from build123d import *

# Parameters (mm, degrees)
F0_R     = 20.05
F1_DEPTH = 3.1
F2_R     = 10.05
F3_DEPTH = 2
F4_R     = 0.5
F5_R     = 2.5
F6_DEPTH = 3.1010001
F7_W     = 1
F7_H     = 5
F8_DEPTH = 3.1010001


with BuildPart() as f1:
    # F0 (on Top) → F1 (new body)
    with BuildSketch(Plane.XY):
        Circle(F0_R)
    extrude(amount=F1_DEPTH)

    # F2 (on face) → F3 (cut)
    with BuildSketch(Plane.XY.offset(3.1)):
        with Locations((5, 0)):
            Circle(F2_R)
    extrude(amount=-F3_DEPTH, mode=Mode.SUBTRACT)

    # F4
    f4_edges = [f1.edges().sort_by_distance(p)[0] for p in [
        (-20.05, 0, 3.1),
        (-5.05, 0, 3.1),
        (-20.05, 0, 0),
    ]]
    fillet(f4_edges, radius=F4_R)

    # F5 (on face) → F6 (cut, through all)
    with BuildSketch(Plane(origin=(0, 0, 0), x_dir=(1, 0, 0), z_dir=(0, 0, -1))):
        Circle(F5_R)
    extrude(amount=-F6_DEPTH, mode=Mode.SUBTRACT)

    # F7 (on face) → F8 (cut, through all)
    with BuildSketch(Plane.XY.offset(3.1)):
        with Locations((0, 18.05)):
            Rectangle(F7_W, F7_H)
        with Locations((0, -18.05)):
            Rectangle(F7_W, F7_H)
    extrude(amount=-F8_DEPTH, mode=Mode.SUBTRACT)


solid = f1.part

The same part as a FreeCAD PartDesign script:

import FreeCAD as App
import Part
import Sketcher

V = App.Vector


def edges_at(feature, points):
    """Names of the edges that pass closest to the given points."""
    edges = feature.Shape.Edges
    near = lambda p: min(range(len(edges)), key=lambda i: edges[i].distToShape(Part.Vertex(*p))[0])
    return sorted({f"Edge{near(p) + 1}" for p in points})


def add_polygon(sketch, points):
    """Adds a closed chain of lines whose ends are joined by coincident constraints."""
    first, n = sketch.GeometryCount, len(points)
    for a, b in zip(points, points[1:] + points[:1]):
        sketch.addGeometry(Part.LineSegment(App.Vector(*a, 0), App.Vector(*b, 0)), False)
    for i in range(n):
        sketch.addConstraint(Sketcher.Constraint("Coincident", first + i, 2, first + (i + 1) % n, 1))

doc = App.newDocument("Part")
body = doc.addObject("PartDesign::Body", "Body")

sketch1 = body.newObject("Sketcher::SketchObject", "Sketch")
sketch1.AttachmentSupport = (doc.getObject("XY_Plane"), [""])
sketch1.MapMode = "FlatFace"
sketch1.addGeometry(Part.Circle(V(0, 0, 0), V(0, 0, 1), 20.05), False)
sketch1.addConstraint([
    Sketcher.Constraint("Coincident", 0, 3, -1, 1),
    Sketcher.Constraint("Diameter", 0, 40.1),
])
pad1 = body.newObject("PartDesign::Pad", "Pad")
pad1.Profile = sketch1
pad1.Length = 3.1

sketch2 = body.newObject("Sketcher::SketchObject", "Sketch001")
sketch2.AttachmentSupport = (doc.getObject("XY_Plane"), [""])
sketch2.MapMode = "FlatFace"
sketch2.AttachmentOffset = App.Placement(V(0, 0, 3.1), App.Rotation())
sketch2.addGeometry(Part.Circle(V(5, 0, 0), V(0, 0, 1), 10.05), False)
sketch2.addConstraint([
    Sketcher.Constraint("PointOnObject", 0, 3, -1),
    Sketcher.Constraint("Diameter", 0, 20.1),
    Sketcher.Constraint("DistanceX", -1, 1, 0, 3, 5.0),
])
pocket1 = body.newObject("PartDesign::Pocket", "Pocket")
pocket1.Profile = sketch2
pocket1.Length = 2
doc.recompute()

fillet = body.newObject("PartDesign::Fillet", "Fillet")
fillet.Base = (pocket1, edges_at(pocket1, [(-20.05, 0, 3.1), (-5.05, 0, 3.1), (-20.05, 0, 0)]))
fillet.Radius = 0.5

sketch3 = body.newObject("Sketcher::SketchObject", "Sketch002")
sketch3.AttachmentSupport = (doc.getObject("XY_Plane"), [""])
sketch3.MapMode = "FlatFace"
sketch3.addGeometry(Part.Circle(V(0, 0, 0), V(0, 0, 1), 2.5), False)
sketch3.addConstraint([
    Sketcher.Constraint("Coincident", 0, 3, -1, 1),
    Sketcher.Constraint("Diameter", 0, 5.0),
])
pocket2 = body.newObject("PartDesign::Pocket", "Pocket001")
pocket2.Profile = sketch3
pocket2.Type = "ThroughAll"
pocket2.Reversed = True

sketch4 = body.newObject("Sketcher::SketchObject", "Sketch003")
sketch4.AttachmentSupport = (doc.getObject("XY_Plane"), [""])
sketch4.MapMode = "FlatFace"
sketch4.AttachmentOffset = App.Placement(V(0, 0, 3.1), App.Rotation())
add_polygon(sketch4, [(-0.5, 20.55), (-0.5, 15.55), (0.5, 15.55), (0.5, 20.55)])
add_polygon(sketch4, [(-0.5, -15.55), (-0.5, -20.55), (0.5, -20.55), (0.5, -15.55)])
sketch4.addConstraint([
    Sketcher.Constraint("Vertical", 0),
    Sketcher.Constraint("Horizontal", 1),
    Sketcher.Constraint("Vertical", 2),
    Sketcher.Constraint("Horizontal", 3),
    Sketcher.Constraint("Vertical", 4),
    Sketcher.Constraint("Horizontal", 5),
    Sketcher.Constraint("Vertical", 6),
    Sketcher.Constraint("Horizontal", 7),
    Sketcher.Constraint("Symmetric", 2, 2, 4, 2, -1, 1),
    Sketcher.Constraint("Symmetric", 0, 2, 6, 2, -1, 1),
    Sketcher.Constraint("Vertical", 3, 2, 4, 2),
    Sketcher.Constraint("DistanceX", 1, 1, 1, 2, 1.0),
    Sketcher.Constraint("DistanceY", 0, 2, 0, 1, 5.0),
    Sketcher.Constraint("DistanceY", 4, 2, 0, 2, 36.1),
])
pocket3 = body.newObject("PartDesign::Pocket", "Pocket002")
pocket3.Profile = sketch4
pocket3.Type = "ThroughAll"

doc.recompute()
